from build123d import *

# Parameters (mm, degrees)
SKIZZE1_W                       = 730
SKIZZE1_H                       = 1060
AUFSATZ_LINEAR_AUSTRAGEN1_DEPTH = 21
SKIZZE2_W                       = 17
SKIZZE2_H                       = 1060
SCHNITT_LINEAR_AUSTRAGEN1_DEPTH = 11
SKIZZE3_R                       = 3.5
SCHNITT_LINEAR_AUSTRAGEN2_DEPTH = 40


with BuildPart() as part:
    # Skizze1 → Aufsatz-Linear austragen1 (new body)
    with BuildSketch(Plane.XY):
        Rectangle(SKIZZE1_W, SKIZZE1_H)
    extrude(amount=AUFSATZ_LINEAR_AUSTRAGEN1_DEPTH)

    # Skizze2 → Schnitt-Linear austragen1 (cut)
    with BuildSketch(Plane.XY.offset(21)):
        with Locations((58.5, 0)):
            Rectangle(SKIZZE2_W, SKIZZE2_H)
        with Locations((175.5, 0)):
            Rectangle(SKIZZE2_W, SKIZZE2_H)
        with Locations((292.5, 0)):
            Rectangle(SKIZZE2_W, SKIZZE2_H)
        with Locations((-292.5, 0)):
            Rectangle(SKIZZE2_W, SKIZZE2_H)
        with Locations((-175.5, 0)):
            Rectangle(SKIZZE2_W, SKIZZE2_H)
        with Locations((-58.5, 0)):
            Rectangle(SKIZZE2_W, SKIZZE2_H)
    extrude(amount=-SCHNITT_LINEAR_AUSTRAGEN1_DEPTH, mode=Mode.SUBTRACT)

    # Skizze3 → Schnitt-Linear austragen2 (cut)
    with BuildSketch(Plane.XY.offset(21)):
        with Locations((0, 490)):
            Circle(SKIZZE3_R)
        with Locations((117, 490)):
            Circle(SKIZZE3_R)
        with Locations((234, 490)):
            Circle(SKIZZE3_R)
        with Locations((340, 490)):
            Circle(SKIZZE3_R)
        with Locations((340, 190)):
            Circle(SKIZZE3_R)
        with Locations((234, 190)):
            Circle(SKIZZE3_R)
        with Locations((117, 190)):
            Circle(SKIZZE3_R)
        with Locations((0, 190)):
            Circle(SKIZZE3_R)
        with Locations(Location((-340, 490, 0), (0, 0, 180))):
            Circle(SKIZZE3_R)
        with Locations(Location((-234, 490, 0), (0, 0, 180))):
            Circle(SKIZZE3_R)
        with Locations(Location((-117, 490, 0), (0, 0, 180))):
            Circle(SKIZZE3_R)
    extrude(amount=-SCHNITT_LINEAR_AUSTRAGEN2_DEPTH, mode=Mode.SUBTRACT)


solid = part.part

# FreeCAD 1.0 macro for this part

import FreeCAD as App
import Part
import Sketcher

V = App.Vector
Q = App.Units.Quantity

doc = App.newDocument("Part")
params = doc.addObject("Spreadsheet::Sheet", "Params")
for row, (alias, value) in enumerate([
    ("sketch1_width", "730 mm"),
    ("sketch1_height", "1060 mm"),
    ("pad1_length", "21 mm"),
    ("sketch2_width", "17 mm"),
    ("sketch2_height", "1060 mm"),
    ("pocket1_length", "11 mm"),
    ("sketch3_diameter", "7 mm"),
    ("pocket2_length", "40 mm"),
], start=1):
    params.set(f"A{row}", alias)
    params.set(f"B{row}", "=" + value)
    params.setAlias(f"B{row}", alias)

body = doc.addObject("PartDesign::Body", "Body")

# Sketch on XY plane
sketch1 = doc.addObject("Sketcher::SketchObject", "Sketch")
body.addObject(sketch1)
sketch1.AttachmentSupport = (doc.XY_Plane, [""])
sketch1.MapMode = "FlatFace"
sketch1.addGeometry([
    Part.LineSegment(V(-365, 530, 0), V(-365, -530, 0)),
    Part.LineSegment(V(-365, -530, 0), V(365, -530, 0)),
    Part.LineSegment(V(365, -530, 0), V(365, 530, 0)),
    Part.LineSegment(V(365, 530, 0), V(-365, 530, 0)),
], False)
sketch1.addConstraint([
    Sketcher.Constraint("Coincident", 0, 2, 1, 1),
    Sketcher.Constraint("Coincident", 1, 2, 2, 1),
    Sketcher.Constraint("Coincident", 2, 2, 3, 1),
    Sketcher.Constraint("Coincident", 3, 2, 0, 1),
    Sketcher.Constraint("Vertical", 0),
    Sketcher.Constraint("Horizontal", 1),
    Sketcher.Constraint("Vertical", 2),
    Sketcher.Constraint("Horizontal", 3),
    Sketcher.Constraint("Symmetric", 0, 2, 2, 2, -1, 1),
    Sketcher.Constraint("DistanceX", 1, 1, 1, 2, Q("730 mm")),
    Sketcher.Constraint("DistanceY", 0, 2, 0, 1, Q("1060 mm")),
])
sketch1.setExpression("Constraints[9]", "Params.sketch1_width")
sketch1.setExpression("Constraints[10]", "Params.sketch1_height")
pad1 = doc.addObject("PartDesign::Pad", "Pad")
body.addObject(pad1)
pad1.Profile = sketch1
pad1.setExpression("Length", "Params.pad1_length")

# Sketch on XY plane
sketch2 = doc.addObject("Sketcher::SketchObject", "Sketch001")
body.addObject(sketch2)
sketch2.AttachmentSupport = (doc.XY_Plane, [""])
sketch2.MapMode = "FlatFace"
sketch2.AttachmentOffset = App.Placement(V(0, 0, 21), App.Rotation())
sketch2.addGeometry([
    Part.LineSegment(V(50, 530, 0), V(50, -530, 0)),  # 0
    Part.LineSegment(V(50, -530, 0), V(67, -530, 0)),  # 1
    Part.LineSegment(V(67, -530, 0), V(67, 530, 0)),  # 2
    Part.LineSegment(V(67, 530, 0), V(50, 530, 0)),  # 3
    Part.LineSegment(V(167, 530, 0), V(167, -530, 0)),  # 4
    Part.LineSegment(V(167, -530, 0), V(184, -530, 0)),  # 5
    Part.LineSegment(V(184, -530, 0), V(184, 530, 0)),  # 6
    Part.LineSegment(V(184, 530, 0), V(167, 530, 0)),  # 7
    Part.LineSegment(V(284, 530, 0), V(284, -530, 0)),  # 8
    Part.LineSegment(V(284, -530, 0), V(301, -530, 0)),  # 9
    Part.LineSegment(V(301, -530, 0), V(301, 530, 0)),  # 10
    Part.LineSegment(V(301, 530, 0), V(284, 530, 0)),  # 11
    Part.LineSegment(V(-301, 530, 0), V(-301, -530, 0)),  # 12
    Part.LineSegment(V(-301, -530, 0), V(-284, -530, 0)),  # 13
    Part.LineSegment(V(-284, -530, 0), V(-284, 530, 0)),  # 14
    Part.LineSegment(V(-284, 530, 0), V(-301, 530, 0)),  # 15
    Part.LineSegment(V(-184, 530, 0), V(-184, -530, 0)),  # 16
    Part.LineSegment(V(-184, -530, 0), V(-167, -530, 0)),  # 17
    Part.LineSegment(V(-167, -530, 0), V(-167, 530, 0)),  # 18
    Part.LineSegment(V(-167, 530, 0), V(-184, 530, 0)),  # 19
    Part.LineSegment(V(-67, 530, 0), V(-67, -530, 0)),  # 20
    Part.LineSegment(V(-67, -530, 0), V(-50, -530, 0)),  # 21
    Part.LineSegment(V(-50, -530, 0), V(-50, 530, 0)),  # 22
    Part.LineSegment(V(-50, 530, 0), V(-67, 530, 0)),  # 23
], False)
sketch2.addConstraint([
    Sketcher.Constraint("Coincident", 0, 2, 1, 1),
    Sketcher.Constraint("Coincident", 1, 2, 2, 1),
    Sketcher.Constraint("Coincident", 2, 2, 3, 1),
    Sketcher.Constraint("Coincident", 3, 2, 0, 1),
    Sketcher.Constraint("Coincident", 4, 2, 5, 1),
    Sketcher.Constraint("Coincident", 5, 2, 6, 1),
    Sketcher.Constraint("Coincident", 6, 2, 7, 1),
    Sketcher.Constraint("Coincident", 7, 2, 4, 1),
    Sketcher.Constraint("Coincident", 8, 2, 9, 1),
    Sketcher.Constraint("Coincident", 9, 2, 10, 1),
    Sketcher.Constraint("Coincident", 10, 2, 11, 1),
    Sketcher.Constraint("Coincident", 11, 2, 8, 1),
    Sketcher.Constraint("Coincident", 12, 2, 13, 1),
    Sketcher.Constraint("Coincident", 13, 2, 14, 1),
    Sketcher.Constraint("Coincident", 14, 2, 15, 1),
    Sketcher.Constraint("Coincident", 15, 2, 12, 1),
    Sketcher.Constraint("Coincident", 16, 2, 17, 1),
    Sketcher.Constraint("Coincident", 17, 2, 18, 1),
    Sketcher.Constraint("Coincident", 18, 2, 19, 1),
    Sketcher.Constraint("Coincident", 19, 2, 16, 1),
    Sketcher.Constraint("Coincident", 20, 2, 21, 1),
    Sketcher.Constraint("Coincident", 21, 2, 22, 1),
    Sketcher.Constraint("Coincident", 22, 2, 23, 1),
    Sketcher.Constraint("Coincident", 23, 2, 20, 1),
    Sketcher.Constraint("Vertical", 0),
    Sketcher.Constraint("Horizontal", 1),
    Sketcher.Constraint("Vertical", 2),
    Sketcher.Constraint("Horizontal", 3),
    Sketcher.Constraint("Vertical", 4),
    Sketcher.Constraint("Horizontal", 5),
    Sketcher.Constraint("Vertical", 6),
    Sketcher.Constraint("Horizontal", 7),
    Sketcher.Constraint("Vertical", 8),
    Sketcher.Constraint("Horizontal", 9),
    Sketcher.Constraint("Vertical", 10),
    Sketcher.Constraint("Horizontal", 11),
    Sketcher.Constraint("Vertical", 12),
    Sketcher.Constraint("Horizontal", 13),
    Sketcher.Constraint("Vertical", 14),
    Sketcher.Constraint("Horizontal", 15),
    Sketcher.Constraint("Vertical", 16),
    Sketcher.Constraint("Horizontal", 17),
    Sketcher.Constraint("Vertical", 18),
    Sketcher.Constraint("Horizontal", 19),
    Sketcher.Constraint("Vertical", 20),
    Sketcher.Constraint("Horizontal", 21),
    Sketcher.Constraint("Vertical", 22),
    Sketcher.Constraint("Horizontal", 23),
    Sketcher.Constraint("Symmetric", 10, 2, 12, 2, -1, 1),
    Sketcher.Constraint("Symmetric", 8, 2, 14, 2, -1, 1),
    Sketcher.Constraint("Symmetric", 6, 2, 16, 2, -1, 1),
    Sketcher.Constraint("Symmetric", 4, 2, 18, 2, -1, 1),
    Sketcher.Constraint("Symmetric", 2, 2, 20, 2, -1, 1),
    Sketcher.Constraint("Symmetric", 0, 2, 22, 2, -1, 1),
    Sketcher.Constraint("Horizontal", 1, 2, 4, 2),
    Sketcher.Constraint("Horizontal", 3, 2, 6, 2),
    Sketcher.Constraint("Horizontal", 5, 2, 8, 2),
    Sketcher.Constraint("Horizontal", 7, 2, 10, 2),
    Sketcher.Constraint("Horizontal", 9, 2, 12, 2),
    Sketcher.Constraint("Equal", 3, 5),
    Sketcher.Constraint("Equal", 7, 9),
    Sketcher.Constraint("DistanceX", 1, 1, 1, 2, Q("17 mm")),
    Sketcher.Constraint("DistanceY", 0, 2, 0, 1, Q("1060 mm")),
    Sketcher.Constraint("DistanceX", -1, 1, 0, 2, Q("50 mm")),
    Sketcher.Constraint("DistanceX", -1, 1, 4, 2, Q("167 mm")),
    Sketcher.Constraint("DistanceX", -1, 1, 8, 2, Q("284 mm")),
])
sketch2.setExpression("Constraints[61]", "Params.sketch2_width")
sketch2.setExpression("Constraints[62]", "Params.sketch2_height")
pocket1 = doc.addObject("PartDesign::Pocket", "Pocket")
body.addObject(pocket1)
pocket1.Profile = sketch2
pocket1.setExpression("Length", "Params.pocket1_length")

# Sketch on XY plane
sketch3 = doc.addObject("Sketcher::SketchObject", "Sketch002")
body.addObject(sketch3)
sketch3.AttachmentSupport = (doc.XY_Plane, [""])
sketch3.MapMode = "FlatFace"
sketch3.AttachmentOffset = App.Placement(V(0, 0, 21), App.Rotation())
sketch3.addGeometry([
    Part.Circle(V(0, 490, 0), V(0, 0, 1), 3.5),  # 0
    Part.Circle(V(117, 490, 0), V(0, 0, 1), 3.5),  # 1
    Part.Circle(V(234, 490, 0), V(0, 0, 1), 3.5),  # 2
    Part.Circle(V(340, 490, 0), V(0, 0, 1), 3.5),  # 3
    Part.Circle(V(340, 190, 0), V(0, 0, 1), 3.5),  # 4
    Part.Circle(V(234, 190, 0), V(0, 0, 1), 3.5),  # 5
    Part.Circle(V(117, 190, 0), V(0, 0, 1), 3.5),  # 6
    Part.Circle(V(0, 190, 0), V(0, 0, 1), 3.5),  # 7
    Part.Circle(V(-340, 490, 0), V(0, 0, 1), 3.5),  # 8
    Part.Circle(V(-234, 490, 0), V(0, 0, 1), 3.5),  # 9
    Part.Circle(V(-117, 490, 0), V(0, 0, 1), 3.5),  # 10
], False)
sketch3.addConstraint([
    Sketcher.Constraint("Equal", 0, 1),
    Sketcher.Constraint("Equal", 1, 2),
    Sketcher.Constraint("Equal", 2, 3),
    Sketcher.Constraint("Equal", 3, 4),
    Sketcher.Constraint("Equal", 4, 5),
    Sketcher.Constraint("Equal", 5, 6),
    Sketcher.Constraint("Equal", 6, 7),
    Sketcher.Constraint("Equal", 7, 8),
    Sketcher.Constraint("Equal", 8, 9),
    Sketcher.Constraint("Equal", 9, 10),
    Sketcher.Constraint("Symmetric", 3, 3, 8, 3, -2),
    Sketcher.Constraint("Symmetric", 2, 3, 9, 3, -2),
    Sketcher.Constraint("Symmetric", 1, 3, 10, 3, -2),
    Sketcher.Constraint("PointOnObject", 0, 3, -2),
    Sketcher.Constraint("PointOnObject", 7, 3, -2),
    Sketcher.Constraint("Horizontal", 0, 3, 1, 3),
    Sketcher.Constraint("Horizontal", 1, 3, 2, 3),
    Sketcher.Constraint("Horizontal", 2, 3, 3, 3),
    Sketcher.Constraint("Horizontal", 4, 3, 5, 3),
    Sketcher.Constraint("Horizontal", 5, 3, 6, 3),
    Sketcher.Constraint("Horizontal", 6, 3, 7, 3),
    Sketcher.Constraint("Vertical", 3, 3, 4, 3),
    Sketcher.Constraint("Vertical", 2, 3, 5, 3),
    Sketcher.Constraint("Vertical", 1, 3, 6, 3),
    Sketcher.Constraint("Diameter", 0, Q("7 mm")),
    Sketcher.Constraint("DistanceY", -1, 1, 0, 3, Q("490 mm")),
    Sketcher.Constraint("DistanceX", -1, 1, 1, 3, Q("117 mm")),
    Sketcher.Constraint("DistanceX", -1, 1, 2, 3, Q("234 mm")),
    Sketcher.Constraint("DistanceX", -1, 1, 3, 3, Q("340 mm")),
    Sketcher.Constraint("DistanceY", -1, 1, 4, 3, Q("190 mm")),
])
sketch3.setExpression("Constraints[24]", "Params.sketch3_diameter")
pocket2 = doc.addObject("PartDesign::Pocket", "Pocket001")
body.addObject(pocket2)
pocket2.Profile = sketch3
pocket2.setExpression("Length", "Params.pocket2_length")

doc.recompute()
